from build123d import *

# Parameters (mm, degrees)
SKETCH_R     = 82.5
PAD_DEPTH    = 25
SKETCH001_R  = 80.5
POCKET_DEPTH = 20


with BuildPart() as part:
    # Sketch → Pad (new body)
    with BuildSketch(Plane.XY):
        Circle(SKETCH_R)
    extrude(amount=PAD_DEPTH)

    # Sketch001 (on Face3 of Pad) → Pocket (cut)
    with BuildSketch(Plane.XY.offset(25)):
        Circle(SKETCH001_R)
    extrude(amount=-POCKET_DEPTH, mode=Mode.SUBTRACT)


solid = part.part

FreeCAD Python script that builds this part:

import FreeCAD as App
import Part
import Sketcher

doc = App.newDocument("Part")
body = doc.addObject("PartDesign::Body", "Body")

# Sketch on XY plane
sketch1 = body.newObject("Sketcher::SketchObject", "Sketch")
sketch1.AttachmentSupport = (doc.getObject("XY_Plane"), [""])
sketch1.MapMode = "FlatFace"
sketch1.addGeometry(Part.Circle(App.Vector(0, 0, 0), App.Vector(0, 0, 1), 82), False)
sketch1.addConstraint(Sketcher.Constraint("Coincident", 0, 3, -1, 1))
sketch1.addConstraint(Sketcher.Constraint("Diameter", 0, 165.0))
pad1 = body.newObject("PartDesign::Pad", "Pad")
pad1.Profile = sketch1
pad1.Length = 25

# Sketch on XY plane
sketch2 = body.newObject("Sketcher::SketchObject", "Sketch001")
sketch2.AttachmentSupport = (doc.getObject("XY_Plane"), [""])
sketch2.MapMode = "FlatFace"
sketch2.AttachmentOffset = App.Placement(App.Vector(0, 0, 25), App.Rotation())
sketch2.addGeometry(Part.Circle(App.Vector(0, 0, 0), App.Vector(0, 0, 1), 80), False)
sketch2.addConstraint(Sketcher.Constraint("Coincident", 0, 3, -1, 1))
sketch2.addConstraint(Sketcher.Constraint("Diameter", 0, 161.0))
pocket1 = body.newObject("PartDesign::Pocket", "Pocket")
pocket1.Profile = sketch2
pocket1.Length = 20

doc.recompute()
